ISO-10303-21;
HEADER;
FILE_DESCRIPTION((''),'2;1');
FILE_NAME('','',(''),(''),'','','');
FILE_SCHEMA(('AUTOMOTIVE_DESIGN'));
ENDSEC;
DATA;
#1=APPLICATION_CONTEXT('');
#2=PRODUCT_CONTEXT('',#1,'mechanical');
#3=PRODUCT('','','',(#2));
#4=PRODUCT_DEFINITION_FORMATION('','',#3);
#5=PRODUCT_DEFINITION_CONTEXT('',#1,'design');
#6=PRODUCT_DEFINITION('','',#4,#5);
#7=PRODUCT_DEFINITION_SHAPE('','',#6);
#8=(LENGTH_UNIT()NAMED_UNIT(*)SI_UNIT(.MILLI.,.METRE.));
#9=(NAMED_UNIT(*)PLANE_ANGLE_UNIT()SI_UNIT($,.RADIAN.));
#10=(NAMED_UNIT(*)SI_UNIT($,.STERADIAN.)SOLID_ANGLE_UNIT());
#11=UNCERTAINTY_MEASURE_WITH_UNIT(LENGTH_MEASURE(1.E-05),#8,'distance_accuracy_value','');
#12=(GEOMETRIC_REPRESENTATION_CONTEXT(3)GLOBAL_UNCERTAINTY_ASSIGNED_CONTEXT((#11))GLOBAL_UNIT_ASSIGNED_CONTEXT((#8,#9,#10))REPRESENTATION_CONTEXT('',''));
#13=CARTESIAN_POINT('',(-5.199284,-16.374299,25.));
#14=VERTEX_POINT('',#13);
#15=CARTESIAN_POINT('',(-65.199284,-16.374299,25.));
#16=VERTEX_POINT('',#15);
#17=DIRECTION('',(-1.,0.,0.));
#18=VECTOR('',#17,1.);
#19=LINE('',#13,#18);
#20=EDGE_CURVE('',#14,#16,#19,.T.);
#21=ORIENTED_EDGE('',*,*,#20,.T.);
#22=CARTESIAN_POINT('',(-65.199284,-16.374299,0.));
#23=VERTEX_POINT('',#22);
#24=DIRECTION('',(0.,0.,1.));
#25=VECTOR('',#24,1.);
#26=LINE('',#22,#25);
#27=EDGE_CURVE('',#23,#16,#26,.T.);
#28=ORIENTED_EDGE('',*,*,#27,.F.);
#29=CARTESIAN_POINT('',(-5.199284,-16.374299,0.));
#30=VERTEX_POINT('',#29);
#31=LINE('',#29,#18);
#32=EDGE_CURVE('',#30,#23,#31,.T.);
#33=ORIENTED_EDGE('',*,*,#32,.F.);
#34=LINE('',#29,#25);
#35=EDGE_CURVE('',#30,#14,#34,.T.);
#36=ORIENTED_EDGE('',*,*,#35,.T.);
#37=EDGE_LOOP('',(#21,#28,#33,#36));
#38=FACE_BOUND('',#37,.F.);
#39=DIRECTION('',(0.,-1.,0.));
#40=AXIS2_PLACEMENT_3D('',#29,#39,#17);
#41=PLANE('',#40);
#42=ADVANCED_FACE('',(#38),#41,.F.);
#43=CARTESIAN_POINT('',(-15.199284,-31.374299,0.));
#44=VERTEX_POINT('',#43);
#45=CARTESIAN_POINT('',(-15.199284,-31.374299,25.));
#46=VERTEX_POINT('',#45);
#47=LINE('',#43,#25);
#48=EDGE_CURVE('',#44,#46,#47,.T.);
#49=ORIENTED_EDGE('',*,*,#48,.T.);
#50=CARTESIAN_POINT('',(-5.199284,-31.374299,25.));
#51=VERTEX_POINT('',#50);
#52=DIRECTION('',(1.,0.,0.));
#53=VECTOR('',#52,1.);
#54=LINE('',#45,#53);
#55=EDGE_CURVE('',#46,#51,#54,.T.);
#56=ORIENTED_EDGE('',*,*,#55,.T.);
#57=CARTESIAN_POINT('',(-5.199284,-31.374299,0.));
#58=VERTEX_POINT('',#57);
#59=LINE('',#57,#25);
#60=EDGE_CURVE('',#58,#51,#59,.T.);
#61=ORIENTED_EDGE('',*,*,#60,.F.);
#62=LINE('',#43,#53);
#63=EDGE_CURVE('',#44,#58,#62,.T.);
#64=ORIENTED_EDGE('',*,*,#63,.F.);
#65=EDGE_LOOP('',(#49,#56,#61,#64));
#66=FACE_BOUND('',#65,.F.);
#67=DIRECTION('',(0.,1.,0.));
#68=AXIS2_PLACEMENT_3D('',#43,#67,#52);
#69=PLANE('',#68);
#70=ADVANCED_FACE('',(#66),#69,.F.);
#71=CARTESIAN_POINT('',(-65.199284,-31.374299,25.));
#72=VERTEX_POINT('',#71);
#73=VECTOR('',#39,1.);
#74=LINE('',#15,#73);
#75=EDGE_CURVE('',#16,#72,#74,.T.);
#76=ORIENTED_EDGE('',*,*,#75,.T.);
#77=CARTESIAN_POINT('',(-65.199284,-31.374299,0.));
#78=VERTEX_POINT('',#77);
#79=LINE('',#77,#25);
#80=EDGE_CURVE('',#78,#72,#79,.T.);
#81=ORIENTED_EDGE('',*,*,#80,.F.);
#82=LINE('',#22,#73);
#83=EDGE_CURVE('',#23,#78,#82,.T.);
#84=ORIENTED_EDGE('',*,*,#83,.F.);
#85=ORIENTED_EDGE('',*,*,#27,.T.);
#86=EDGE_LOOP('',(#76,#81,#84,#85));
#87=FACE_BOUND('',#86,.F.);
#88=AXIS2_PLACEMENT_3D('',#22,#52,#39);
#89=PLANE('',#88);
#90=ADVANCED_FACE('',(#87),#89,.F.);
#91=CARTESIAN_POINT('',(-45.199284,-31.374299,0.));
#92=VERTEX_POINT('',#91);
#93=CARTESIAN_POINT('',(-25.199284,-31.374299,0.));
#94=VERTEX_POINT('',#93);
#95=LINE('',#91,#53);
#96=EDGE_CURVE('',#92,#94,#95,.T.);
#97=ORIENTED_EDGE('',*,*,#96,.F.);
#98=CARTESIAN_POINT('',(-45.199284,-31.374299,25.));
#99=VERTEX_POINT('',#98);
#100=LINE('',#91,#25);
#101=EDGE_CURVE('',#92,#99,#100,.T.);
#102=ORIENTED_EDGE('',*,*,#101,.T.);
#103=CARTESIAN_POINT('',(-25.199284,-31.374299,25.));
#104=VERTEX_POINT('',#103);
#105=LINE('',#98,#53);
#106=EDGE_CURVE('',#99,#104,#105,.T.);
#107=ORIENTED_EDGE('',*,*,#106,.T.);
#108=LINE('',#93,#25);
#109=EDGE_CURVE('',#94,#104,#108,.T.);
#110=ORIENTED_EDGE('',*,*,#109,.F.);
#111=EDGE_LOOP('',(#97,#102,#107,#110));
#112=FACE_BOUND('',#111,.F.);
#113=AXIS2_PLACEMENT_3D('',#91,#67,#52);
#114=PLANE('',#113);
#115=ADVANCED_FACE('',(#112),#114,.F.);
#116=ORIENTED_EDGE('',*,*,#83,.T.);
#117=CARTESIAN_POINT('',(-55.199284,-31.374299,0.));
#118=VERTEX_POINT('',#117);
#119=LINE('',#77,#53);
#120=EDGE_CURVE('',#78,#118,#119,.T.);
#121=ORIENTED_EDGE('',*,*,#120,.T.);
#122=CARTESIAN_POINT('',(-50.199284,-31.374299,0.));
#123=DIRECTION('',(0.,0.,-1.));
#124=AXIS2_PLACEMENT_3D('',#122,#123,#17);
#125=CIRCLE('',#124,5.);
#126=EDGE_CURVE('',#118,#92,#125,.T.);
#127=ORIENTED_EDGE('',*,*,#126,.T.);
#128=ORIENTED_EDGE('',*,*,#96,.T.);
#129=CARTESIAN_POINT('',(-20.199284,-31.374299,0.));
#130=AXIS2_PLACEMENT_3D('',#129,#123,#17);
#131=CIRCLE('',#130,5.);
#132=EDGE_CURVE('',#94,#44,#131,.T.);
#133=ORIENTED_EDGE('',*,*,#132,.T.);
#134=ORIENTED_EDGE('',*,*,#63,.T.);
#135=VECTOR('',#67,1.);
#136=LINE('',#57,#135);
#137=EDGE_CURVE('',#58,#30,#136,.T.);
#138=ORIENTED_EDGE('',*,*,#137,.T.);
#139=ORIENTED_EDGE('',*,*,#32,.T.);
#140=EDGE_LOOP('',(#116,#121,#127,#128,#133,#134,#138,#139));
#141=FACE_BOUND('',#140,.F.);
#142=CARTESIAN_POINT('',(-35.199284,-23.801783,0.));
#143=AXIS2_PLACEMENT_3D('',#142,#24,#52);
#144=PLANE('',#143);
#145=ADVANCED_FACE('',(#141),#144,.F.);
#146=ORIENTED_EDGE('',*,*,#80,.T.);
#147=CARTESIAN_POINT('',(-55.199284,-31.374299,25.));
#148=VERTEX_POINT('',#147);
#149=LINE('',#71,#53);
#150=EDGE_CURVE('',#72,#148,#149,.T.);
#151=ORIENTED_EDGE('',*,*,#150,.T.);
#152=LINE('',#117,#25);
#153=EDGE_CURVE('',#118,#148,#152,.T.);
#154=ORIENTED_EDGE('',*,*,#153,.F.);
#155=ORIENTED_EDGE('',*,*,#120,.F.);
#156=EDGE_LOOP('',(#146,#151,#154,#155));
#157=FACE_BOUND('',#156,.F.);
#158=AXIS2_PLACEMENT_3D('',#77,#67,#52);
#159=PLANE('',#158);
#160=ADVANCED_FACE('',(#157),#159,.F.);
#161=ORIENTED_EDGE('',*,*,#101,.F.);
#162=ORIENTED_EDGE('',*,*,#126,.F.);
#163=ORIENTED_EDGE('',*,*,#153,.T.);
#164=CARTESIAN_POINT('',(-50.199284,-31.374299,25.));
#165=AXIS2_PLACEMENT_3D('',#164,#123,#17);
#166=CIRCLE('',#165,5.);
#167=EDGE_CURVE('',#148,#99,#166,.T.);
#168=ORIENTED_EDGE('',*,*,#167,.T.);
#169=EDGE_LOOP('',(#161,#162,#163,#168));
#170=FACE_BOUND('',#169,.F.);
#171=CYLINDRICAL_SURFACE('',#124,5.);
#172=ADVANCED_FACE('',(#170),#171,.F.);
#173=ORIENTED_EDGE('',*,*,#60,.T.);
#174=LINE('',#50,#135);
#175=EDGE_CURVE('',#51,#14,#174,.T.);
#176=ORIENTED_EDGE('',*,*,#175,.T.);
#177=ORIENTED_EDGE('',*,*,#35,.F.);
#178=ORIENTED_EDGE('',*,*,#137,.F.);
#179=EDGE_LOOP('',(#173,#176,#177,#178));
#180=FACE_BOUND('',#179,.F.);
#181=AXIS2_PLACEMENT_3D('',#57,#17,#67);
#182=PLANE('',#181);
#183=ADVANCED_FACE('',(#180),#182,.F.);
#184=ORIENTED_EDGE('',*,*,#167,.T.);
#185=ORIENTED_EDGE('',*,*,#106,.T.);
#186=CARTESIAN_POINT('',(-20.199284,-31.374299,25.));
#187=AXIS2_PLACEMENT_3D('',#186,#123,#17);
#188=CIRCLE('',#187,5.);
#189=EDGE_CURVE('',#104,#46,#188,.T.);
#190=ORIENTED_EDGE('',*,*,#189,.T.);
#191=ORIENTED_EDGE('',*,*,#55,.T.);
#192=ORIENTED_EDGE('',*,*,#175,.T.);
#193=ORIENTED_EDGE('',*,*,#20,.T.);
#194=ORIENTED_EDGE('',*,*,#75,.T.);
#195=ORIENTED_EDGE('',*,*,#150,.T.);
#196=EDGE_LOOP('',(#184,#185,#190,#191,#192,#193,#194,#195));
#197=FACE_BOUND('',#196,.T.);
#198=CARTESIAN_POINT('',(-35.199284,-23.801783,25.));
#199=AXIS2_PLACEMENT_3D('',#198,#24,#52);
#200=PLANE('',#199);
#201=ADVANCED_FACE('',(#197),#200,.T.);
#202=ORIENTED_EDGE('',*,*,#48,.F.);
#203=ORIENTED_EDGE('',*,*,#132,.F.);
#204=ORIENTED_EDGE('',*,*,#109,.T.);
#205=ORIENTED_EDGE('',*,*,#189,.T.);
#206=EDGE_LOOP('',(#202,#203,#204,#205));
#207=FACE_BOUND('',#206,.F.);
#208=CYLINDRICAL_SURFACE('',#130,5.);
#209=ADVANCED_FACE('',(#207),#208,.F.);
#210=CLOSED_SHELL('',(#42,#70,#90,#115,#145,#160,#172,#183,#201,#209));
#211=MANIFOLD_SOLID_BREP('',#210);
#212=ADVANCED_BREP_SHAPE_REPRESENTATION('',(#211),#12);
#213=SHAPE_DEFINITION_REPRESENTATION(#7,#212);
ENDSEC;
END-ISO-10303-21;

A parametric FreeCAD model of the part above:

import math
import FreeCAD as App
import Part
import Sketcher

V = App.Vector

doc = App.newDocument("Part")
body = doc.addObject("PartDesign::Body", "Body")

# Sketch on XY plane
sketch1 = doc.addObject("Sketcher::SketchObject", "Sketch")
body.addObject(sketch1)
sketch1.AttachmentSupport = (doc.XY_Plane, [""])
sketch1.MapMode = "FlatFace"
sketch1.addGeometry(Part.LineSegment(V(-5, -16, 0), V(-65, -16, 0)), False)
sketch1.addGeometry(Part.LineSegment(V(-65, -16, 0), V(-65, -31, 0)), False)
sketch1.addGeometry(Part.LineSegment(V(-65, -31, 0), V(-55, -31, 0)), False)
sketch1.addGeometry(Part.ArcOfCircle(Part.Circle(V(-50, -31, 0), V(0, 0, 1), 5), math.radians(0), math.radians(180)), False)
sketch1.addGeometry(Part.LineSegment(V(-45, -31, 0), V(-25, -31, 0)), False)
sketch1.addGeometry(Part.ArcOfCircle(Part.Circle(V(-20, -31, 0), V(0, 0, 1), 5), math.radians(0), math.radians(180)), False)
sketch1.addGeometry(Part.LineSegment(V(-15, -31, 0), V(-5, -31, 0)), False)
sketch1.addGeometry(Part.LineSegment(V(-5, -31, 0), V(-5, -16, 0)), False)
sketch1.addConstraint(Sketcher.Constraint("Coincident", 0, 2, 1, 1))
sketch1.addConstraint(Sketcher.Constraint("Coincident", 1, 2, 2, 1))
sketch1.addConstraint(Sketcher.Constraint("Coincident", 2, 2, 3, 2))
sketch1.addConstraint(Sketcher.Constraint("Coincident", 3, 1, 4, 1))
sketch1.addConstraint(Sketcher.Constraint("Coincident", 4, 2, 5, 2))
sketch1.addConstraint(Sketcher.Constraint("Coincident", 5, 1, 6, 1))
sketch1.addConstraint(Sketcher.Constraint("Coincident", 6, 2, 7, 1))
sketch1.addConstraint(Sketcher.Constraint("Coincident", 7, 2, 0, 1))
sketch1.addConstraint(Sketcher.Constraint("Horizontal", 0))
sketch1.addConstraint(Sketcher.Constraint("Vertical", 1))
sketch1.addConstraint(Sketcher.Constraint("Horizontal", 2))
sketch1.addConstraint(Sketcher.Constraint("Horizontal", 4))
sketch1.addConstraint(Sketcher.Constraint("Horizontal", 6))
sketch1.addConstraint(Sketcher.Constraint("Vertical", 7))
sketch1.addConstraint(Sketcher.Constraint("Equal", 3, 5))
sketch1.addConstraint(Sketcher.Constraint("Horizontal", 3, 3, 5, 3))
sketch1.addConstraint(Sketcher.Constraint("Horizontal", 5, 3, 1, 2))
sketch1.addConstraint(Sketcher.Constraint("Horizontal", 2, 2, 3, 1))
sketch1.addConstraint(Sketcher.Constraint("Horizontal", 4, 2, 5, 1))
sketch1.addConstraint(Sketcher.Constraint("Equal", 2, 6))
sketch1.addConstraint(Sketcher.Constraint("Radius", 3, 5.0))
sketch1.addConstraint(Sketcher.Constraint("DistanceX", 0, 2, 0, 1, 60.0))
sketch1.addConstraint(Sketcher.Constraint("DistanceX", 2, 1, 2, 2, 10.0))
sketch1.addConstraint(Sketcher.Constraint("DistanceY", 1, 2, 1, 1, 15.0))
sketch1.addConstraint(Sketcher.Constraint("DistanceY", 3, 3, -1, 1, 31.374299))
sketch1.addConstraint(Sketcher.Constraint("DistanceX", 3, 3, -1, 1, 50.199284))
pad1 = doc.addObject("PartDesign::Pad", "Pad")
body.addObject(pad1)
pad1.Profile = sketch1
pad1.Length = 25

doc.recompute()
